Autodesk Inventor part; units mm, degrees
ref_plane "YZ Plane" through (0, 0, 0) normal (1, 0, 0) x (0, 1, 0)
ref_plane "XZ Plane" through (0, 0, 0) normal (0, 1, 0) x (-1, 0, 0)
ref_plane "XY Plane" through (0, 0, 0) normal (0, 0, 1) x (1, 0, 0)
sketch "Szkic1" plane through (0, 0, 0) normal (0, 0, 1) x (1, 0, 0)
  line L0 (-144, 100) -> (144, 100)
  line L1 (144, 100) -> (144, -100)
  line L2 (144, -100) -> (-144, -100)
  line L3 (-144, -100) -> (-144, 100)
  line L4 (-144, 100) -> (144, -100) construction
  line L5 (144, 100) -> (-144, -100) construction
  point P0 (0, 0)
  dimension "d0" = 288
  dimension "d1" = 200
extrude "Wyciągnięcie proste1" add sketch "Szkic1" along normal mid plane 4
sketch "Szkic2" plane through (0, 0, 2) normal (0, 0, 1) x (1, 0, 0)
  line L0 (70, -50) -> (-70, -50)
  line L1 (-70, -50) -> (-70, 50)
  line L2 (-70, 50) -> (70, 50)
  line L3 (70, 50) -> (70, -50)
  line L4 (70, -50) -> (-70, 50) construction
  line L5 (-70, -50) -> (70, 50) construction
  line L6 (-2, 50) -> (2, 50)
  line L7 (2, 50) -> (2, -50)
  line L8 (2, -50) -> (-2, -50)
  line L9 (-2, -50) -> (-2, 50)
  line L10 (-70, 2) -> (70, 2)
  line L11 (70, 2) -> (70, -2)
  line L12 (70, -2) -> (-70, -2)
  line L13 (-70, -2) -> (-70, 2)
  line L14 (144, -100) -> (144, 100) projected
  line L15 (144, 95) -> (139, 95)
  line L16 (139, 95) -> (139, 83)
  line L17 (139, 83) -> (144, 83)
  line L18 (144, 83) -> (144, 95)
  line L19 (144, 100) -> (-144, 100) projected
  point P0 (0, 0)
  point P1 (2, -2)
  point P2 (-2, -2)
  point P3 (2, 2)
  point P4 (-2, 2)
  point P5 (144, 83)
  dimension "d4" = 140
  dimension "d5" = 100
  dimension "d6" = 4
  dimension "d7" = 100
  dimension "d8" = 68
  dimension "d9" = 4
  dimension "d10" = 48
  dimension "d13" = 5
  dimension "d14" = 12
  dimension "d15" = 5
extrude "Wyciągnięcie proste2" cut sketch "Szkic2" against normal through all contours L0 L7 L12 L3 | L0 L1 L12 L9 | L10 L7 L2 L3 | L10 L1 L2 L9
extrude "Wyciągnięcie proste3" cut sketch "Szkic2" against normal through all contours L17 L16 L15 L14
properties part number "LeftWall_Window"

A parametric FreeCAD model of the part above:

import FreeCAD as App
import Part
import Sketcher

V = App.Vector

doc = App.newDocument("Part")
body = doc.addObject("PartDesign::Body", "Body")

# Sketch on XY plane
sketch1 = doc.addObject("Sketcher::SketchObject", "Sketch")
body.addObject(sketch1)
sketch1.AttachmentSupport = (doc.XY_Plane, [""])
sketch1.MapMode = "FlatFace"
sketch1.addGeometry([
    Part.LineSegment(V(144, 100, 0), V(-144, 100, 0)),
    Part.LineSegment(V(-144, 100, 0), V(-144, -100, 0)),
    Part.LineSegment(V(-144, -100, 0), V(144, -100, 0)),
    Part.LineSegment(V(144, -100, 0), V(144, 100, 0)),
], False)
sketch1.addConstraint([
    Sketcher.Constraint("Coincident", 0, 2, 1, 1),
    Sketcher.Constraint("Coincident", 1, 2, 2, 1),
    Sketcher.Constraint("Coincident", 2, 2, 3, 1),
    Sketcher.Constraint("Coincident", 3, 2, 0, 1),
    Sketcher.Constraint("Horizontal", 0),
    Sketcher.Constraint("Vertical", 1),
    Sketcher.Constraint("Horizontal", 2),
    Sketcher.Constraint("Vertical", 3),
    Sketcher.Constraint("Symmetric", 0, 2, 2, 2, -1, 1),
    Sketcher.Constraint("DistanceX", 0, 2, 0, 1, 288.0),
    Sketcher.Constraint("DistanceY", 1, 2, 1, 1, 200.0),
])
pad1 = doc.addObject("PartDesign::Pad", "Pad")
body.addObject(pad1)
pad1.Profile = sketch1
pad1.Length = 4
pad1.Midplane = True

# Sketch on XY plane
sketch2 = doc.addObject("Sketcher::SketchObject", "Sketch001")
body.addObject(sketch2)
sketch2.AttachmentSupport = (doc.XY_Plane, [""])
sketch2.MapMode = "FlatFace"
sketch2.AttachmentOffset = App.Placement(V(0, 0, 2), App.Rotation())
sketch2.addGeometry([
    Part.LineSegment(V(2, -50, 0), V(70, -50, 0)),  # 0
    Part.LineSegment(V(70, -50, 0), V(70, -2, 0)),  # 1
    Part.LineSegment(V(70, -2, 0), V(2, -2, 0)),  # 2
    Part.LineSegment(V(2, -2, 0), V(2, -50, 0)),  # 3
    Part.LineSegment(V(-70, -50, 0), V(-2, -50, 0)),  # 4
    Part.LineSegment(V(-2, -50, 0), V(-2, -2, 0)),  # 5
    Part.LineSegment(V(-2, -2, 0), V(-70, -2, 0)),  # 6
    Part.LineSegment(V(-70, -2, 0), V(-70, -50, 0)),  # 7
    Part.LineSegment(V(2, 2, 0), V(70, 2, 0)),  # 8
    Part.LineSegment(V(70, 2, 0), V(70, 50, 0)),  # 9
    Part.LineSegment(V(70, 50, 0), V(2, 50, 0)),  # 10
    Part.LineSegment(V(2, 50, 0), V(2, 2, 0)),  # 11
    Part.LineSegment(V(-70, 2, 0), V(-2, 2, 0)),  # 12
    Part.LineSegment(V(-2, 2, 0), V(-2, 50, 0)),  # 13
    Part.LineSegment(V(-2, 50, 0), V(-70, 50, 0)),  # 14
    Part.LineSegment(V(-70, 50, 0), V(-70, 2, 0)),  # 15
], False)
sketch2.addConstraint([
    Sketcher.Constraint("Coincident", 0, 2, 1, 1),
    Sketcher.Constraint("Coincident", 1, 2, 2, 1),
    Sketcher.Constraint("Coincident", 2, 2, 3, 1),
    Sketcher.Constraint("Coincident", 3, 2, 0, 1),
    Sketcher.Constraint("Coincident", 4, 2, 5, 1),
    Sketcher.Constraint("Coincident", 5, 2, 6, 1),
    Sketcher.Constraint("Coincident", 6, 2, 7, 1),
    Sketcher.Constraint("Coincident", 7, 2, 4, 1),
    Sketcher.Constraint("Coincident", 8, 2, 9, 1),
    Sketcher.Constraint("Coincident", 9, 2, 10, 1),
    Sketcher.Constraint("Coincident", 10, 2, 11, 1),
    Sketcher.Constraint("Coincident", 11, 2, 8, 1),
    Sketcher.Constraint("Coincident", 12, 2, 13, 1),
    Sketcher.Constraint("Coincident", 13, 2, 14, 1),
    Sketcher.Constraint("Coincident", 14, 2, 15, 1),
    Sketcher.Constraint("Coincident", 15, 2, 12, 1),
    Sketcher.Constraint("Horizontal", 0),
    Sketcher.Constraint("Vertical", 1),
    Sketcher.Constraint("Horizontal", 2),
    Sketcher.Constraint("Vertical", 3),
    Sketcher.Constraint("Horizontal", 4),
    Sketcher.Constraint("Vertical", 5),
    Sketcher.Constraint("Horizontal", 6),
    Sketcher.Constraint("Vertical", 7),
    Sketcher.Constraint("Horizontal", 8),
    Sketcher.Constraint("Vertical", 9),
    Sketcher.Constraint("Horizontal", 10),
    Sketcher.Constraint("Vertical", 11),
    Sketcher.Constraint("Horizontal", 12),
    Sketcher.Constraint("Vertical", 13),
    Sketcher.Constraint("Horizontal", 14),
    Sketcher.Constraint("Vertical", 15),
    Sketcher.Constraint("Symmetric", 6, 2, 8, 2, -1, 1),
    Sketcher.Constraint("Symmetric", 4, 2, 10, 2, -1, 1),
    Sketcher.Constraint("Symmetric", 2, 2, 12, 2, -1, 1),
    Sketcher.Constraint("Symmetric", 0, 2, 14, 2, -1, 1),
    Sketcher.Constraint("Symmetric", 3, 2, 4, 2, -2),
    Sketcher.Constraint("Symmetric", 1, 2, 6, 2, -2),
    Sketcher.Constraint("DistanceX", 0, 1, 0, 2, 68.0),
    Sketcher.Constraint("DistanceY", 1, 1, 1, 2, 48.0),
    Sketcher.Constraint("DistanceX", 4, 2, 3, 2, 4.0),
    Sketcher.Constraint("DistanceY", 1, 2, 8, 2, 4.0),
])
pocket1 = doc.addObject("PartDesign::Pocket", "Pocket")
body.addObject(pocket1)
pocket1.Profile = sketch2
pocket1.Type = "ThroughAll"

# Sketch on XY plane
sketch3 = doc.addObject("Sketcher::SketchObject", "Sketch002")
body.addObject(sketch3)
sketch3.AttachmentSupport = (doc.XY_Plane, [""])
sketch3.MapMode = "FlatFace"
sketch3.AttachmentOffset = App.Placement(V(0, 0, 2), App.Rotation())
sketch3.addGeometry([
    Part.LineSegment(V(139, 83, 0), V(144, 83, 0)),
    Part.LineSegment(V(144, 83, 0), V(144, 95, 0)),
    Part.LineSegment(V(144, 95, 0), V(139, 95, 0)),
    Part.LineSegment(V(139, 95, 0), V(139, 83, 0)),
], False)
sketch3.addConstraint([
    Sketcher.Constraint("Coincident", 0, 2, 1, 1),
    Sketcher.Constraint("Coincident", 1, 2, 2, 1),
    Sketcher.Constraint("Coincident", 2, 2, 3, 1),
    Sketcher.Constraint("Coincident", 3, 2, 0, 1),
    Sketcher.Constraint("Horizontal", 0),
    Sketcher.Constraint("Vertical", 1),
    Sketcher.Constraint("Horizontal", 2),
    Sketcher.Constraint("Vertical", 3),
    Sketcher.Constraint("DistanceX", 0, 1, 0, 2, 5.0),
    Sketcher.Constraint("DistanceY", 1, 1, 1, 2, 12.0),
    Sketcher.Constraint("DistanceX", -1, 1, 0, 2, 144.0),
    Sketcher.Constraint("DistanceY", -1, 1, 0, 2, 83.0),
])
pocket2 = doc.addObject("PartDesign::Pocket", "Pocket001")
body.addObject(pocket2)
pocket2.Profile = sketch3
pocket2.Type = "ThroughAll"

doc.recompute()
